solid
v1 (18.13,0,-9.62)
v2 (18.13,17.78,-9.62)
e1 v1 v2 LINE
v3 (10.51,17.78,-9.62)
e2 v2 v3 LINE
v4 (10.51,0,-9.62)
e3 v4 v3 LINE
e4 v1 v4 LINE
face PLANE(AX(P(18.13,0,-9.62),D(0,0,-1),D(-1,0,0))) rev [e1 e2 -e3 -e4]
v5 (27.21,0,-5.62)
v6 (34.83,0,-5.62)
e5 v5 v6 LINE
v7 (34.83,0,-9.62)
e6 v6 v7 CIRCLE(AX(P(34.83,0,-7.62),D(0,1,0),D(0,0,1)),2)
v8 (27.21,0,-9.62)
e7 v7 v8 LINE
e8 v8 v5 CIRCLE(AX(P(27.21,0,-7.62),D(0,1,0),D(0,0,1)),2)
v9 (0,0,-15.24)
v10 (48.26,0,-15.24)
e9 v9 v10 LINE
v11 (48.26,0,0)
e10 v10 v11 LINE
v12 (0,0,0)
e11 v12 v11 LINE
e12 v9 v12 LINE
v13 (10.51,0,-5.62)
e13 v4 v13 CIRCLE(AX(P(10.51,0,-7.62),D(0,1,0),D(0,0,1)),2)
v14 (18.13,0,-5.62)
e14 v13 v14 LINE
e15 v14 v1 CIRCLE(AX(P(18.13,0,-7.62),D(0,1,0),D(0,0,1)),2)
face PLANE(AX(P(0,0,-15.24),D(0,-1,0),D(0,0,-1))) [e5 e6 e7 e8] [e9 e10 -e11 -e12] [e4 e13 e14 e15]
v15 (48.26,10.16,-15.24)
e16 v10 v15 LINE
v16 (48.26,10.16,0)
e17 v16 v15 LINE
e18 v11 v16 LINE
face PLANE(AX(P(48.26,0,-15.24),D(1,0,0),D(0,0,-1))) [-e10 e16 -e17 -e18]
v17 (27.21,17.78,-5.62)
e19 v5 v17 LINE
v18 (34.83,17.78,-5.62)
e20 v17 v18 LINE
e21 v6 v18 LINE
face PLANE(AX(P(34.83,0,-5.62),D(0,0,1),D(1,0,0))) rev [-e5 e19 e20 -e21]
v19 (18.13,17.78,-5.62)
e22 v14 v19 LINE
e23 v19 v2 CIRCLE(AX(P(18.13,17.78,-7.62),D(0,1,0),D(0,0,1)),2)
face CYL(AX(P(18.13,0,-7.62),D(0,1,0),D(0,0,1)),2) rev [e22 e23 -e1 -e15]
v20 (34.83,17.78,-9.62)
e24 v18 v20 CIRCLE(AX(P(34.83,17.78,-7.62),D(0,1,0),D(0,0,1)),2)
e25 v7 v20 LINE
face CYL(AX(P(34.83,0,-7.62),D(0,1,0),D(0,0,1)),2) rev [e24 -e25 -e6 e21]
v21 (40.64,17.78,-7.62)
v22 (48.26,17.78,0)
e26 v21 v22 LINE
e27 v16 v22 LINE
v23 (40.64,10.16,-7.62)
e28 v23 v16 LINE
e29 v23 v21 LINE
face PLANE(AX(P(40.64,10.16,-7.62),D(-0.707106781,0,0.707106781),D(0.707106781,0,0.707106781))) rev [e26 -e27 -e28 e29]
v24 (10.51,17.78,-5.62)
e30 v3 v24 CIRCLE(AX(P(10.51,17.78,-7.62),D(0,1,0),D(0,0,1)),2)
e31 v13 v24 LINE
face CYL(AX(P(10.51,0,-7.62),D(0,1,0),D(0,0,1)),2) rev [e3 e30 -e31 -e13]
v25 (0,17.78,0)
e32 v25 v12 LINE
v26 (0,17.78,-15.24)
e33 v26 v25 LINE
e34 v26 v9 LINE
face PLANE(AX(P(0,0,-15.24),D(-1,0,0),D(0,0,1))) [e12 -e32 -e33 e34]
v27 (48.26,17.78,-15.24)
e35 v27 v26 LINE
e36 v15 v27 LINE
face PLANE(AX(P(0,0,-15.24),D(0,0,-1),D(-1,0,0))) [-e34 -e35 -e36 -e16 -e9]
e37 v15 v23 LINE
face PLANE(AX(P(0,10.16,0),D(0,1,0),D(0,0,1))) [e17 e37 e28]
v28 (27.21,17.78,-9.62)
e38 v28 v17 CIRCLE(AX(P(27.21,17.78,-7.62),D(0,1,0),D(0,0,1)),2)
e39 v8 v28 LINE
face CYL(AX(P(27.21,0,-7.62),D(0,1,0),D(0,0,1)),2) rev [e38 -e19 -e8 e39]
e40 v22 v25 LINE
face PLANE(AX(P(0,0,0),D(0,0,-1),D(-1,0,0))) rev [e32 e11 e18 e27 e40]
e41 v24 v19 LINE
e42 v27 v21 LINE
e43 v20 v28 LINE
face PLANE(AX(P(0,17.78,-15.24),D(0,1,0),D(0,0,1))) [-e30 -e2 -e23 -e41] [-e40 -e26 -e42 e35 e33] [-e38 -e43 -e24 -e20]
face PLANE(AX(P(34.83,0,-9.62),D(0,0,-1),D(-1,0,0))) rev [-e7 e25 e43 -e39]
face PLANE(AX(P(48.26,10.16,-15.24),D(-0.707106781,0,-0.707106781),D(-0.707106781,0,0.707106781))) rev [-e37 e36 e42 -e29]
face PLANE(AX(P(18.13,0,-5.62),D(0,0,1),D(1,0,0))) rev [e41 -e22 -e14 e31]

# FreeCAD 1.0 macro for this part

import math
import FreeCAD as App
import Part
import Sketcher
from FreeCAD import Vector
Q = App.Units.Quantity

doc = App.newDocument("Part")
body = doc.addObject("PartDesign::Body", "Body")

sketch1 = doc.addObject("Sketcher::SketchObject", "Sketch")
body.addObject(sketch1)
sketch1.AttachmentSupport = (doc.XY_Plane, [""])
sketch1.MapMode = "FlatFace"
sketch1.addGeometry([
    Part.LineSegment(Vector(0, 18, 0), Vector(0, 0, 0)),
    Part.LineSegment(Vector(0, 0, 0), Vector(48, 0, 0)),
    Part.LineSegment(Vector(48, 0, 0), Vector(48, 18, 0)),
    Part.LineSegment(Vector(48, 18, 0), Vector(0, 18, 0)),
], False)
sketch1.addConstraint([
    Sketcher.Constraint("Coincident", 0, 2, 1, 1),
    Sketcher.Constraint("Coincident", 1, 2, 2, 1),
    Sketcher.Constraint("Coincident", 2, 2, 3, 1),
    Sketcher.Constraint("Coincident", 3, 2, 0, 1),
    Sketcher.Constraint("Vertical", 0),
    Sketcher.Constraint("Horizontal", 1),
    Sketcher.Constraint("Vertical", 2),
    Sketcher.Constraint("Horizontal", 3),
    Sketcher.Constraint("Coincident", 0, 2, -1, 1),
    Sketcher.Constraint("DistanceX", 1, 1, 1, 2, Q("1.9 in")),
    Sketcher.Constraint("DistanceY", 0, 2, 0, 1, Q("0.7 in")),
])
pad1 = doc.addObject("PartDesign::Pad", "Pad")
body.addObject(pad1)
pad1.Profile = sketch1
pad1.Length = Q("0.6 in")
pad1.Reversed = True

sketch2 = doc.addObject("Sketcher::SketchObject", "Sketch001")
body.addObject(sketch2)
sketch2.AttachmentSupport = (doc.XZ_Plane, [""])
sketch2.MapMode = "FlatFace"
sketch2.AttachmentOffset = App.Placement(Vector(0, 0, -0.7 * 25.4), App.Rotation())
sketch2.addGeometry([
    Part.LineSegment(Vector(48, -15, 0), Vector(41, -8, 0)),
    Part.LineSegment(Vector(41, -8, 0), Vector(48, 0, 0)),
    Part.LineSegment(Vector(48, 0, 0), Vector(48, -15, 0)),
], False)
sketch2.addConstraint([
    Sketcher.Constraint("Coincident", 0, 2, 1, 1),
    Sketcher.Constraint("Coincident", 1, 2, 2, 1),
    Sketcher.Constraint("Coincident", 2, 2, 0, 1),
    Sketcher.Constraint("Vertical", 2),
    Sketcher.Constraint("PointOnObject", 1, 2, -1),
    Sketcher.Constraint("Perpendicular", 0, 1),
    Sketcher.Constraint("Equal", 0, 1),
    Sketcher.Constraint("DistanceY", 2, 2, 2, 1, Q("0.6 in")),
    Sketcher.Constraint("DistanceX", -1, 1, 0, 2, Q("1.6 in")),
])
pocket1 = doc.addObject("PartDesign::Pocket", "Pocket")
body.addObject(pocket1)
pocket1.Profile = sketch2
pocket1.Length = Q("0.3 in")
pocket1.Reversed = True

sketch3 = doc.addObject("Sketcher::SketchObject", "Sketch002")
body.addObject(sketch3)
sketch3.AttachmentSupport = (doc.XZ_Plane, [""])
sketch3.MapMode = "FlatFace"
sketch3.AttachmentOffset = App.Placement(Vector(0, 0, -0.7 * 25.4), App.Rotation())
sketch3.addGeometry([
    Part.LineSegment(Vector(27.2, -5.6, 0), Vector(34.8, -5.6, 0)),
    Part.ArcOfCircle(Part.Circle(Vector(34.8, -7.6, 0), Vector(0, 0, 1), 2), math.radians(-90), math.radians(90)),
    Part.LineSegment(Vector(34.8, -9.6, 0), Vector(27.2, -9.6, 0)),
    Part.ArcOfCircle(Part.Circle(Vector(27.2, -7.6, 0), Vector(0, 0, 1), 2), math.radians(90), math.radians(270)),
    Part.LineSegment(Vector(10.5, -5.6, 0), Vector(18.1, -5.6, 0)),
    Part.ArcOfCircle(Part.Circle(Vector(18.1, -7.6, 0), Vector(0, 0, 1), 2), math.radians(-90), math.radians(90)),
    Part.LineSegment(Vector(18.1, -9.6, 0), Vector(10.5, -9.6, 0)),
    Part.ArcOfCircle(Part.Circle(Vector(10.5, -7.6, 0), Vector(0, 0, 1), 2), math.radians(90), math.radians(270)),
], False)
sketch3.addConstraint([
    Sketcher.Constraint("Tangent", 0, 2, 1, 2),
    Sketcher.Constraint("Tangent", 1, 1, 2, 1),
    Sketcher.Constraint("Tangent", 2, 2, 3, 2),
    Sketcher.Constraint("Tangent", 3, 1, 0, 1),
    Sketcher.Constraint("Tangent", 4, 2, 5, 2),
    Sketcher.Constraint("Tangent", 5, 1, 6, 1),
    Sketcher.Constraint("Tangent", 6, 2, 7, 2),
    Sketcher.Constraint("Tangent", 7, 1, 4, 1),
    Sketcher.Constraint("Horizontal", 0),
    Sketcher.Constraint("Horizontal", 2),
    Sketcher.Constraint("Horizontal", 4),
    Sketcher.Constraint("Horizontal", 6),
    Sketcher.Constraint("Equal", 3, 5),
    Sketcher.Constraint("Horizontal", 3, 3, 5, 3),
    Sketcher.Constraint("Equal", 2, 4),
    Sketcher.Constraint("DistanceX", 0, 1, 0, 2, Q("0.3 in")),
    Sketcher.Constraint("DistanceY", 1, 3, -1, 1, Q("0.3 in")),
    Sketcher.Constraint("Radius", 1, 2.0),
    Sketcher.Constraint("DistanceX", -1, 1, 1, 3, 34.83),
    Sketcher.Constraint("DistanceX", -1, 1, 5, 3, 18.13),
])
pocket2 = doc.addObject("PartDesign::Pocket", "Pocket001")
body.addObject(pocket2)
pocket2.Profile = sketch3
pocket2.Type = "ThroughAll"
pocket2.Reversed = True

doc.recompute()
